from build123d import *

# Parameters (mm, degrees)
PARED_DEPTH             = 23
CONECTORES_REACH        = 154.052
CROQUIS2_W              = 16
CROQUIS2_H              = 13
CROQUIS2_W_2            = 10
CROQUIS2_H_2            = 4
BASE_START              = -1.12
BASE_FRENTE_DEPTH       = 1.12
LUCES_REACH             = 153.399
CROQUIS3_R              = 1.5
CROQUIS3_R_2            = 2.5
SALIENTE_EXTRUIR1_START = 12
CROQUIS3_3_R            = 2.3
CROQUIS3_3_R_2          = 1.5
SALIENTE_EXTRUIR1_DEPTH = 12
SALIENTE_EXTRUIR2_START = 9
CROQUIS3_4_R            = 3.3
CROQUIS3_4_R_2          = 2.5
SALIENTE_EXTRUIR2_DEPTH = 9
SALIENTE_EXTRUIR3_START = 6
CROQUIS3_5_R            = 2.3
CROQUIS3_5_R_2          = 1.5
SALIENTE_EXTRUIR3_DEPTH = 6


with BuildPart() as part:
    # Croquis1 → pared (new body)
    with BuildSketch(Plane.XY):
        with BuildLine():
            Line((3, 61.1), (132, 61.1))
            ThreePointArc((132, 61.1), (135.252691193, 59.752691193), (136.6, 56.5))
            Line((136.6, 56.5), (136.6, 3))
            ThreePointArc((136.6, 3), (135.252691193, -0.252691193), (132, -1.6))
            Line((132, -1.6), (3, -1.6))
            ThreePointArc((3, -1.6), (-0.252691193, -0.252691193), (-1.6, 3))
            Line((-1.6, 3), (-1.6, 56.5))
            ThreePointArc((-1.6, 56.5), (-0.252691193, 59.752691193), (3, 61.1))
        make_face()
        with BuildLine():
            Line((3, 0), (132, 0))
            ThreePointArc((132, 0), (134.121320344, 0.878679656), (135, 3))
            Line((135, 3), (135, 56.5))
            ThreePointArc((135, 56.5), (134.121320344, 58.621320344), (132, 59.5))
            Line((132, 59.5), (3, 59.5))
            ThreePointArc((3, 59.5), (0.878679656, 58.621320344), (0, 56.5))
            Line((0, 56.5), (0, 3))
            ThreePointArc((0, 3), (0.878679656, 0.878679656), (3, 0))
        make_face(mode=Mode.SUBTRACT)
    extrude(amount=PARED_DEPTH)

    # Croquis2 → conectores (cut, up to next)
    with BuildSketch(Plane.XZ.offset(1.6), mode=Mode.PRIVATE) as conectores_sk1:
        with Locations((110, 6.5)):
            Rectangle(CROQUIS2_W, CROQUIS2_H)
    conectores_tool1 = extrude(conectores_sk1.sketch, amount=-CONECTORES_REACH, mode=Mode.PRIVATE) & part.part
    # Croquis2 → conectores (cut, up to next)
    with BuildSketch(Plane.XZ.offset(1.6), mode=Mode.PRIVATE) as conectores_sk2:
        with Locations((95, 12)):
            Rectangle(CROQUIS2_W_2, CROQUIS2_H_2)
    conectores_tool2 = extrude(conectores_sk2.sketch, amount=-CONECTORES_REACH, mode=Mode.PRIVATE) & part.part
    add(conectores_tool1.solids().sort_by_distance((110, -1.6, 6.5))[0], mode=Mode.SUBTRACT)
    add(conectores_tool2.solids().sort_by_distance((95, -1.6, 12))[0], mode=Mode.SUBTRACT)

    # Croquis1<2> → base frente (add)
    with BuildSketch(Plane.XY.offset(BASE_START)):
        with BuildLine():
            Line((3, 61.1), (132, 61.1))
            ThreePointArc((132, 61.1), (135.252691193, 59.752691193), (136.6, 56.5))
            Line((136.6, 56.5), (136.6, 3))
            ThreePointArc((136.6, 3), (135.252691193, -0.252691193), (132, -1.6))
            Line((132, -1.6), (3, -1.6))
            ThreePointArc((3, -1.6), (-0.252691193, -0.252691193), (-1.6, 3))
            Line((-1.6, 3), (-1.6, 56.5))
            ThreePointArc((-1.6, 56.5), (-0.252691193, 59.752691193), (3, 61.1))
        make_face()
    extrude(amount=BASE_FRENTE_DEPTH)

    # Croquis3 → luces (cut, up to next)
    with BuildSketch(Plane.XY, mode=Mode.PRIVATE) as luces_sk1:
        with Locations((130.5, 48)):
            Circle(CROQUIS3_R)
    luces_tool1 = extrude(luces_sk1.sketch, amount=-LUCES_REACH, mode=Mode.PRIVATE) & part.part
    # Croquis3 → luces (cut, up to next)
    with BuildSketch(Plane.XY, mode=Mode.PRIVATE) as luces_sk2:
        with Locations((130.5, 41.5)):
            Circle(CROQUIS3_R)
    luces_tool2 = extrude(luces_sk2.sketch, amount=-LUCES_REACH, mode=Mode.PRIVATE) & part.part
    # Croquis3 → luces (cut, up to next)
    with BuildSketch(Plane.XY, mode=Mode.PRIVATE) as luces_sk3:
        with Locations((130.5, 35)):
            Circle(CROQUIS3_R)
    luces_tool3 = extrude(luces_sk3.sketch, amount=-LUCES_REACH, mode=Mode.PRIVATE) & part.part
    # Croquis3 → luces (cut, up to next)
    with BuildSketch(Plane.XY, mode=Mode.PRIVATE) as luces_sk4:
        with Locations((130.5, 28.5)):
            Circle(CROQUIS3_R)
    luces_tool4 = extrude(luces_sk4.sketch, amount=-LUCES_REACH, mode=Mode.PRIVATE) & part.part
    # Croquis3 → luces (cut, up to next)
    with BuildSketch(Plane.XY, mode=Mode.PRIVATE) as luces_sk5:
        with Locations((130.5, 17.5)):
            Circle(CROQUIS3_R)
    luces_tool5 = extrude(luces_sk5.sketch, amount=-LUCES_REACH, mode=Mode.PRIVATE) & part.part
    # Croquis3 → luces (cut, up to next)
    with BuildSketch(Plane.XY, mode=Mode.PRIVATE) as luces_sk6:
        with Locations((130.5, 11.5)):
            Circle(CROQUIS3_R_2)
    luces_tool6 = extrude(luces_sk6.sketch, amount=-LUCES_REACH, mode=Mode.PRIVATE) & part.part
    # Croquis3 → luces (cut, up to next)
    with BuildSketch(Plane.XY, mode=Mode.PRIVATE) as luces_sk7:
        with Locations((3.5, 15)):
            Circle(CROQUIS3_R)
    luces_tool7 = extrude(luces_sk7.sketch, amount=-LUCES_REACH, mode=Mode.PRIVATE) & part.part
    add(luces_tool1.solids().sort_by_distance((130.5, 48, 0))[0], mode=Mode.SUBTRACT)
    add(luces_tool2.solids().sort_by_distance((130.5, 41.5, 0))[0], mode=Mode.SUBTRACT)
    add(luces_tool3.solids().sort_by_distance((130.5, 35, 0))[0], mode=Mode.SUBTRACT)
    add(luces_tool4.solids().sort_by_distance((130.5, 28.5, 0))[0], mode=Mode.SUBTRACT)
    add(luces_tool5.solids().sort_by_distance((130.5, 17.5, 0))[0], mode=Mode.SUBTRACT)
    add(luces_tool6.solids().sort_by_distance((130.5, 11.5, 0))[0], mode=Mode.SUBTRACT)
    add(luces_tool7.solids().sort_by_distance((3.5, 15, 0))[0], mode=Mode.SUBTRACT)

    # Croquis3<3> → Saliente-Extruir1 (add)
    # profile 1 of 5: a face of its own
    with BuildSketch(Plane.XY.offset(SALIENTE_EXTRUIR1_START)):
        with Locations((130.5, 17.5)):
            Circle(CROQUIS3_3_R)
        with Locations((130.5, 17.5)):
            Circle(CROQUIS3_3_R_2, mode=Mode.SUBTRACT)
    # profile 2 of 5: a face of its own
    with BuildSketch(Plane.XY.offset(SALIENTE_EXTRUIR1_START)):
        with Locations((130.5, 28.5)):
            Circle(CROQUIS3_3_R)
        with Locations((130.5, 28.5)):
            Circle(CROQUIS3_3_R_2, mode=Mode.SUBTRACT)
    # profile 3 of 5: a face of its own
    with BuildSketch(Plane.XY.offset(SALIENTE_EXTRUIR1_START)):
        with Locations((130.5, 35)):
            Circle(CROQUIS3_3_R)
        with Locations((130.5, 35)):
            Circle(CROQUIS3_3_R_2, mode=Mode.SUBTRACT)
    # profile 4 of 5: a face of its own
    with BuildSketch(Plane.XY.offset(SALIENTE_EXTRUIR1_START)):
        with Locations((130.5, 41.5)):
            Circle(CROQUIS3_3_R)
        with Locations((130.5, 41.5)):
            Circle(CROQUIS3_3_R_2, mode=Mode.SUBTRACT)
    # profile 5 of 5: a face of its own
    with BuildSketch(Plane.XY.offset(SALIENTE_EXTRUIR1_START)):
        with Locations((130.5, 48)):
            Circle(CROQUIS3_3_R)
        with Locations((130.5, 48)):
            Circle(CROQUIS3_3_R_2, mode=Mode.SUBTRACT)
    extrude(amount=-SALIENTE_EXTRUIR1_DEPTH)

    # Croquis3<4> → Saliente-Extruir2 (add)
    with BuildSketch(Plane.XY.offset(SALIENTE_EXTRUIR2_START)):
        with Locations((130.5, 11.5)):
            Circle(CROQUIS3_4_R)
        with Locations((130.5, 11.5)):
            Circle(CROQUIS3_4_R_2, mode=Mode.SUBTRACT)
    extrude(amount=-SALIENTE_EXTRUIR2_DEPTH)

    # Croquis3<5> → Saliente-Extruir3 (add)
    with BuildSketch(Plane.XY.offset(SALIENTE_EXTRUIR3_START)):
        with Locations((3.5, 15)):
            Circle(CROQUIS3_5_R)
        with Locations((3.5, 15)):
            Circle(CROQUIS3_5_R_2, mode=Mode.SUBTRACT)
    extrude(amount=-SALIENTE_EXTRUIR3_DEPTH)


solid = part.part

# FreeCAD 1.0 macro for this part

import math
import FreeCAD as App
import Part
import Sketcher

V = App.Vector

doc = App.newDocument("Part")
body = doc.addObject("PartDesign::Body", "Body")

# Sketch on XY plane
sketch1 = body.newObject("Sketcher::SketchObject", "Sketch")
sketch1.AttachmentSupport = (doc.getObject("XY_Plane"), [""])
sketch1.MapMode = "FlatFace"
sketch1.addGeometry([
    Part.LineSegment(V(132, 61.1, 0), V(3, 61.1, 0)),  # 0
    Part.ArcOfCircle(Part.Circle(V(3, 56.5, 0), V(0, 0, 1), 4.6), math.radians(90), math.radians(180)),  # 1
    Part.LineSegment(V(-1.6, 56.5, 0), V(-1.6, 3, 0)),  # 2
    Part.ArcOfCircle(Part.Circle(V(3, 3, 0), V(0, 0, 1), 4.6), math.radians(-180), math.radians(-90)),  # 3
    Part.LineSegment(V(3, -1.6, 0), V(132, -1.6, 0)),  # 4
    Part.ArcOfCircle(Part.Circle(V(132, 3, 0), V(0, 0, 1), 4.6), math.radians(-90), math.radians(0)),  # 5
    Part.LineSegment(V(136.6, 3, 0), V(136.6, 56.5, 0)),  # 6
    Part.ArcOfCircle(Part.Circle(V(132, 56.5, 0), V(0, 0, 1), 4.6), math.radians(0), math.radians(90)),  # 7
    Part.ArcOfCircle(Part.Circle(V(3, 3, 0), V(0, 0, 1), 3), math.radians(180), math.radians(270)),  # 8
    Part.LineSegment(V(0, 3, 0), V(0, 56.5, 0)),  # 9
    Part.ArcOfCircle(Part.Circle(V(3, 56.5, 0), V(0, 0, 1), 3), math.radians(90), math.radians(180)),  # 10
    Part.LineSegment(V(3, 59.5, 0), V(132, 59.5, 0)),  # 11
    Part.ArcOfCircle(Part.Circle(V(132, 56.5, 0), V(0, 0, 1), 3), math.radians(0), math.radians(90)),  # 12
    Part.LineSegment(V(135, 56.5, 0), V(135, 3, 0)),  # 13
    Part.ArcOfCircle(Part.Circle(V(132, 3, 0), V(0, 0, 1), 3), math.radians(-90), math.radians(0)),  # 14
    Part.LineSegment(V(132, 0, 0), V(3, 0, 0)),  # 15
], False)
sketch1.addConstraint([
    Sketcher.Constraint("Tangent", 0, 2, 1, 1),
    Sketcher.Constraint("Tangent", 1, 2, 2, 1),
    Sketcher.Constraint("Tangent", 2, 2, 3, 1),
    Sketcher.Constraint("Tangent", 3, 2, 4, 1),
    Sketcher.Constraint("Tangent", 4, 2, 5, 1),
    Sketcher.Constraint("Tangent", 5, 2, 6, 1),
    Sketcher.Constraint("Tangent", 6, 2, 7, 1),
    Sketcher.Constraint("Tangent", 7, 2, 0, 1),
    Sketcher.Constraint("Tangent", 8, 1, 9, 1),
    Sketcher.Constraint("Tangent", 9, 2, 10, 2),
    Sketcher.Constraint("Tangent", 10, 1, 11, 1),
    Sketcher.Constraint("Tangent", 11, 2, 12, 2),
    Sketcher.Constraint("Tangent", 12, 1, 13, 1),
    Sketcher.Constraint("Tangent", 13, 2, 14, 2),
    Sketcher.Constraint("Tangent", 14, 1, 15, 1),
    Sketcher.Constraint("Tangent", 15, 2, 8, 2),
    Sketcher.Constraint("Horizontal", 0),
    Sketcher.Constraint("Vertical", 2),
    Sketcher.Constraint("Horizontal", 4),
    Sketcher.Constraint("Vertical", 6),
    Sketcher.Constraint("Vertical", 9),
    Sketcher.Constraint("Horizontal", 11),
    Sketcher.Constraint("Vertical", 13),
    Sketcher.Constraint("Horizontal", 15),
    Sketcher.Constraint("Coincident", 8, 3, 3, 3),
    Sketcher.Constraint("Coincident", 10, 3, 1, 3),
    Sketcher.Constraint("Coincident", 12, 3, 7, 3),
    Sketcher.Constraint("Equal", 1, 3),
    Sketcher.Constraint("Equal", 3, 5),
    Sketcher.Constraint("Equal", 5, 7),
    Sketcher.Constraint("Equal", 12, 14),
    Sketcher.Constraint("PointOnObject", 8, 1, -2),
    Sketcher.Constraint("PointOnObject", 14, 1, -1),
    Sketcher.Constraint("Radius", 8, 3.0),
    Sketcher.Constraint("Radius", 1, 4.6),
    Sketcher.Constraint("DistanceX", 0, 2, 0, 1, 129.0),
    Sketcher.Constraint("DistanceY", 2, 2, 2, 1, 53.5),
])
pad1 = body.newObject("PartDesign::Pad", "Pad")
pad1.Profile = sketch1
pad1.Length = 23

# Sketch on XZ plane
sketch2 = body.newObject("Sketcher::SketchObject", "Sketch001")
sketch2.AttachmentSupport = (doc.getObject("XZ_Plane"), [""])
sketch2.MapMode = "FlatFace"
sketch2.AttachmentOffset = App.Placement(V(0, 0, 1.6), App.Rotation())
sketch2.addGeometry([
    Part.LineSegment(V(102, 13, 0), V(102, 0, 0)),
    Part.LineSegment(V(102, 0, 0), V(118, 0, 0)),
    Part.LineSegment(V(118, 0, 0), V(118, 13, 0)),
    Part.LineSegment(V(118, 13, 0), V(102, 13, 0)),
], False)
sketch2.addConstraint([
    Sketcher.Constraint("Coincident", 0, 2, 1, 1),
    Sketcher.Constraint("Coincident", 1, 2, 2, 1),
    Sketcher.Constraint("Coincident", 2, 2, 3, 1),
    Sketcher.Constraint("Coincident", 3, 2, 0, 1),
    Sketcher.Constraint("Vertical", 0),
    Sketcher.Constraint("Horizontal", 1),
    Sketcher.Constraint("Vertical", 2),
    Sketcher.Constraint("Horizontal", 3),
    Sketcher.Constraint("PointOnObject", 0, 2, -1),
    Sketcher.Constraint("DistanceX", 1, 1, 1, 2, 16.0),
    Sketcher.Constraint("DistanceY", 0, 2, 0, 1, 13.0),
    Sketcher.Constraint("DistanceX", -1, 1, 0, 2, 102.0),
])
pocket1 = body.newObject("PartDesign::Pocket", "Pocket")
pocket1.Profile = sketch2
pocket1.Type = "UpToFirst"

# Sketch on XZ plane
sketch3 = body.newObject("Sketcher::SketchObject", "Sketch002")
sketch3.AttachmentSupport = (doc.getObject("XZ_Plane"), [""])
sketch3.MapMode = "FlatFace"
sketch3.AttachmentOffset = App.Placement(V(0, 0, 1.6), App.Rotation())
sketch3.addGeometry([
    Part.LineSegment(V(90, 14, 0), V(90, 10, 0)),
    Part.LineSegment(V(90, 10, 0), V(100, 10, 0)),
    Part.LineSegment(V(100, 10, 0), V(100, 14, 0)),
    Part.LineSegment(V(100, 14, 0), V(90, 14, 0)),
], False)
sketch3.addConstraint([
    Sketcher.Constraint("Coincident", 0, 2, 1, 1),
    Sketcher.Constraint("Coincident", 1, 2, 2, 1),
    Sketcher.Constraint("Coincident", 2, 2, 3, 1),
    Sketcher.Constraint("Coincident", 3, 2, 0, 1),
    Sketcher.Constraint("Vertical", 0),
    Sketcher.Constraint("Horizontal", 1),
    Sketcher.Constraint("Vertical", 2),
    Sketcher.Constraint("Horizontal", 3),
    Sketcher.Constraint("DistanceX", 1, 1, 1, 2, 10.0),
    Sketcher.Constraint("DistanceY", 0, 2, 0, 1, 4.0),
    Sketcher.Constraint("DistanceX", -1, 1, 0, 2, 90.0),
    Sketcher.Constraint("DistanceY", -1, 1, 0, 2, 10.0),
])
pocket2 = body.newObject("PartDesign::Pocket", "Pocket001")
pocket2.Profile = sketch3
pocket2.Type = "UpToFirst"

# Sketch on XY plane
sketch4 = body.newObject("Sketcher::SketchObject", "Sketch003")
sketch4.AttachmentSupport = (doc.getObject("XY_Plane"), [""])
sketch4.MapMode = "FlatFace"
sketch4.AttachmentOffset = App.Placement(V(0, 0, -1.12), App.Rotation())
sketch4.addGeometry([
    Part.LineSegment(V(132, 61.1, 0), V(3, 61.1, 0)),  # 0
    Part.ArcOfCircle(Part.Circle(V(3, 56.5, 0), V(0, 0, 1), 4.6), math.radians(90), math.radians(180)),  # 1
    Part.LineSegment(V(-1.6, 56.5, 0), V(-1.6, 3, 0)),  # 2
    Part.ArcOfCircle(Part.Circle(V(3, 3, 0), V(0, 0, 1), 4.6), math.radians(-180), math.radians(-90)),  # 3
    Part.LineSegment(V(3, -1.6, 0), V(132, -1.6, 0)),  # 4
    Part.ArcOfCircle(Part.Circle(V(132, 3, 0), V(0, 0, 1), 4.6), math.radians(-90), math.radians(0)),  # 5
    Part.LineSegment(V(136.6, 3, 0), V(136.6, 56.5, 0)),  # 6
    Part.ArcOfCircle(Part.Circle(V(132, 56.5, 0), V(0, 0, 1), 4.6), math.radians(0), math.radians(90)),  # 7
], False)
sketch4.addConstraint([
    Sketcher.Constraint("Tangent", 0, 2, 1, 1),
    Sketcher.Constraint("Tangent", 1, 2, 2, 1),
    Sketcher.Constraint("Tangent", 2, 2, 3, 1),
    Sketcher.Constraint("Tangent", 3, 2, 4, 1),
    Sketcher.Constraint("Tangent", 4, 2, 5, 1),
    Sketcher.Constraint("Tangent", 5, 2, 6, 1),
    Sketcher.Constraint("Tangent", 6, 2, 7, 1),
    Sketcher.Constraint("Tangent", 7, 2, 0, 1),
    Sketcher.Constraint("Horizontal", 0),
    Sketcher.Constraint("Vertical", 2),
    Sketcher.Constraint("Horizontal", 4),
    Sketcher.Constraint("Vertical", 6),
    Sketcher.Constraint("Equal", 1, 3),
    Sketcher.Constraint("Equal", 3, 5),
    Sketcher.Constraint("Equal", 5, 7),
    Sketcher.Constraint("Radius", 1, 4.6),
    Sketcher.Constraint("DistanceX", 0, 2, 0, 1, 129.0),
    Sketcher.Constraint("DistanceY", 2, 2, 2, 1, 53.5),
    Sketcher.Constraint("DistanceX", -1, 1, 1, 3, 3.0),
    Sketcher.Constraint("DistanceY", -1, 1, 3, 3, 3.0),
])
pad2 = body.newObject("PartDesign::Pad", "Pad001")
pad2.Profile = sketch4
pad2.Length = 1.12

# Sketch on XY plane
sketch5 = body.newObject("Sketcher::SketchObject", "Sketch004")
sketch5.AttachmentSupport = (doc.getObject("XY_Plane"), [""])
sketch5.MapMode = "FlatFace"
sketch5.addGeometry(Part.Circle(V(130.5, 48, 0), V(0, 0, 1), 1.5), False)
sketch5.addConstraint([
    Sketcher.Constraint("Diameter", 0, 3.0),
    Sketcher.Constraint("DistanceY", -1, 1, 0, 3, 48.0),
    Sketcher.Constraint("DistanceX", -1, 1, 0, 3, 130.5),
])
pocket3 = body.newObject("PartDesign::Pocket", "Pocket002")
pocket3.Profile = sketch5
pocket3.Type = "UpToFirst"

# Sketch on XY plane
sketch6 = body.newObject("Sketcher::SketchObject", "Sketch005")
sketch6.AttachmentSupport = (doc.getObject("XY_Plane"), [""])
sketch6.MapMode = "FlatFace"
sketch6.addGeometry(Part.Circle(V(130.5, 41.5, 0), V(0, 0, 1), 1.5), False)
sketch6.addConstraint([
    Sketcher.Constraint("Diameter", 0, 3.0),
    Sketcher.Constraint("DistanceX", -1, 1, 0, 3, 130.5),
    Sketcher.Constraint("DistanceY", -1, 1, 0, 3, 41.5),
])
pocket4 = body.newObject("PartDesign::Pocket", "Pocket003")
pocket4.Profile = sketch6
pocket4.Type = "UpToFirst"

# Sketch on XY plane
sketch7 = body.newObject("Sketcher::SketchObject", "Sketch006")
sketch7.AttachmentSupport = (doc.getObject("XY_Plane"), [""])
sketch7.MapMode = "FlatFace"
sketch7.addGeometry(Part.Circle(V(130.5, 35, 0), V(0, 0, 1), 1.5), False)
sketch7.addConstraint([
    Sketcher.Constraint("Diameter", 0, 3.0),
    Sketcher.Constraint("DistanceY", -1, 1, 0, 3, 35.0),
    Sketcher.Constraint("DistanceX", -1, 1, 0, 3, 130.5),
])
pocket5 = body.newObject("PartDesign::Pocket", "Pocket004")
pocket5.Profile = sketch7
pocket5.Type = "UpToFirst"

# Sketch on XY plane
sketch8 = body.newObject("Sketcher::SketchObject", "Sketch007")
sketch8.AttachmentSupport = (doc.getObject("XY_Plane"), [""])
sketch8.MapMode = "FlatFace"
sketch8.addGeometry(Part.Circle(V(130.5, 28.5, 0), V(0, 0, 1), 1.5), False)
sketch8.addConstraint([
    Sketcher.Constraint("Diameter", 0, 3.0),
    Sketcher.Constraint("DistanceX", -1, 1, 0, 3, 130.5),
    Sketcher.Constraint("DistanceY", -1, 1, 0, 3, 28.5),
])
pocket6 = body.newObject("PartDesign::Pocket", "Pocket005")
pocket6.Profile = sketch8
pocket6.Type = "UpToFirst"

# Sketch on XY plane
sketch9 = body.newObject("Sketcher::SketchObject", "Sketch008")
sketch9.AttachmentSupport = (doc.getObject("XY_Plane"), [""])
sketch9.MapMode = "FlatFace"
sketch9.addGeometry(Part.Circle(V(130.5, 17.5, 0), V(0, 0, 1), 1.5), False)
sketch9.addConstraint([
    Sketcher.Constraint("Diameter", 0, 3.0),
    Sketcher.Constraint("DistanceX", -1, 1, 0, 3, 130.5),
    Sketcher.Constraint("DistanceY", -1, 1, 0, 3, 17.5),
])
pocket7 = body.newObject("PartDesign::Pocket", "Pocket006")
pocket7.Profile = sketch9
pocket7.Type = "UpToFirst"

# Sketch on XY plane
sketch10 = body.newObject("Sketcher::SketchObject", "Sketch009")
sketch10.AttachmentSupport = (doc.getObject("XY_Plane"), [""])
sketch10.MapMode = "FlatFace"
sketch10.addGeometry(Part.Circle(V(130.5, 11.5, 0), V(0, 0, 1), 2.5), False)
sketch10.addConstraint([
    Sketcher.Constraint("Diameter", 0, 5.0),
    Sketcher.Constraint("DistanceX", -1, 1, 0, 3, 130.5),
    Sketcher.Constraint("DistanceY", -1, 1, 0, 3, 11.5),
])
pocket8 = body.newObject("PartDesign::Pocket", "Pocket007")
pocket8.Profile = sketch10
pocket8.Type = "UpToFirst"

# Sketch on XY plane
sketch11 = body.newObject("Sketcher::SketchObject", "Sketch010")
sketch11.AttachmentSupport = (doc.getObject("XY_Plane"), [""])
sketch11.MapMode = "FlatFace"
sketch11.addGeometry(Part.Circle(V(3.5, 15, 0), V(0, 0, 1), 1.5), False)
sketch11.addConstraint([
    Sketcher.Constraint("Diameter", 0, 3.0),
    Sketcher.Constraint("DistanceY", -1, 1, 0, 3, 15.0),
    Sketcher.Constraint("DistanceX", -1, 1, 0, 3, 3.5),
])
pocket9 = body.newObject("PartDesign::Pocket", "Pocket008")
pocket9.Profile = sketch11
pocket9.Type = "UpToFirst"

# Sketch on XY plane
sketch12 = body.newObject("Sketcher::SketchObject", "Sketch011")
sketch12.AttachmentSupport = (doc.getObject("XY_Plane"), [""])
sketch12.MapMode = "FlatFace"
sketch12.AttachmentOffset = App.Placement(V(0, 0, 12), App.Rotation())
sketch12.addGeometry([
    Part.Circle(V(130.5, 17.5, 0), V(0, 0, 1), 2.3),  # 0
    Part.Circle(V(130.5, 17.5, 0), V(0, 0, 1), 1.5),  # 1
    Part.Circle(V(130.5, 28.5, 0), V(0, 0, 1), 2.3),  # 2
    Part.Circle(V(130.5, 28.5, 0), V(0, 0, 1), 1.5),  # 3
    Part.Circle(V(130.5, 35, 0), V(0, 0, 1), 2.3),  # 4
    Part.Circle(V(130.5, 35, 0), V(0, 0, 1), 1.5),  # 5
    Part.Circle(V(130.5, 41.5, 0), V(0, 0, 1), 2.3),  # 6
    Part.Circle(V(130.5, 41.5, 0), V(0, 0, 1), 1.5),  # 7
    Part.Circle(V(130.5, 48, 0), V(0, 0, 1), 2.3),  # 8
    Part.Circle(V(130.5, 48, 0), V(0, 0, 1), 1.5),  # 9
], False)
sketch12.addConstraint([
    Sketcher.Constraint("Coincident", 1, 3, 0, 3),
    Sketcher.Constraint("Coincident", 3, 3, 2, 3),
    Sketcher.Constraint("Coincident", 5, 3, 4, 3),
    Sketcher.Constraint("Coincident", 7, 3, 6, 3),
    Sketcher.Constraint("Coincident", 9, 3, 8, 3),
    Sketcher.Constraint("Equal", 0, 2),
    Sketcher.Constraint("Equal", 1, 3),
    Sketcher.Constraint("Equal", 2, 4),
    Sketcher.Constraint("Equal", 3, 5),
    Sketcher.Constraint("Equal", 4, 6),
    Sketcher.Constraint("Equal", 5, 7),
    Sketcher.Constraint("Equal", 6, 8),
    Sketcher.Constraint("Equal", 7, 9),
    Sketcher.Constraint("Vertical", 1, 3, 2, 3),
    Sketcher.Constraint("Vertical", 3, 3, 4, 3),
    Sketcher.Constraint("Vertical", 5, 3, 6, 3),
    Sketcher.Constraint("Vertical", 7, 3, 8, 3),
    Sketcher.Constraint("Diameter", 1, 3.0),
    Sketcher.Constraint("Diameter", 0, 4.6),
    Sketcher.Constraint("DistanceY", -1, 1, 4, 3, 35.0),
    Sketcher.Constraint("DistanceY", -1, 1, 8, 3, 48.0),
    Sketcher.Constraint("DistanceY", 0, 3, 2, 3, 11.0),
    Sketcher.Constraint("DistanceY", 2, 3, 6, 3, 13.0),
    Sketcher.Constraint("DistanceX", -1, 1, 0, 3, 130.5),
    Sketcher.Constraint("DistanceY", -1, 1, 0, 3, 17.5),
])
pad3 = body.newObject("PartDesign::Pad", "Pad002")
pad3.Profile = sketch12
pad3.Length = 12
pad3.Reversed = True

# Sketch on XY plane
sketch13 = body.newObject("Sketcher::SketchObject", "Sketch012")
sketch13.AttachmentSupport = (doc.getObject("XY_Plane"), [""])
sketch13.MapMode = "FlatFace"
sketch13.AttachmentOffset = App.Placement(V(0, 0, 9), App.Rotation())
sketch13.addGeometry([
    Part.Circle(V(130.5, 11.5, 0), V(0, 0, 1), 3.3),
    Part.Circle(V(130.5, 11.5, 0), V(0, 0, 1), 2.5),
], False)
sketch13.addConstraint([
    Sketcher.Constraint("Coincident", 1, 3, 0, 3),
    Sketcher.Constraint("Diameter", 1, 5.0),
    Sketcher.Constraint("Diameter", 0, 6.6),
    Sketcher.Constraint("DistanceX", -1, 1, 0, 3, 130.5),
    Sketcher.Constraint("DistanceY", -1, 1, 0, 3, 11.5),
])
pad4 = body.newObject("PartDesign::Pad", "Pad003")
pad4.Profile = sketch13
pad4.Length = 9
pad4.Reversed = True

# Sketch on XY plane
sketch14 = body.newObject("Sketcher::SketchObject", "Sketch013")
sketch14.AttachmentSupport = (doc.getObject("XY_Plane"), [""])
sketch14.MapMode = "FlatFace"
sketch14.AttachmentOffset = App.Placement(V(0, 0, 6), App.Rotation())
sketch14.addGeometry([
    Part.Circle(V(3.5, 15, 0), V(0, 0, 1), 2.3),
    Part.Circle(V(3.5, 15, 0), V(0, 0, 1), 1.5),
], False)
sketch14.addConstraint([
    Sketcher.Constraint("Coincident", 1, 3, 0, 3),
    Sketcher.Constraint("Diameter", 1, 3.0),
    Sketcher.Constraint("Diameter", 0, 4.6),
    Sketcher.Constraint("DistanceY", -1, 1, 0, 3, 15.0),
    Sketcher.Constraint("DistanceX", -1, 1, 0, 3, 3.5),
])
pad5 = body.newObject("PartDesign::Pad", "Pad004")
pad5.Profile = sketch14
pad5.Length = 6
pad5.Reversed = True

doc.recompute()
